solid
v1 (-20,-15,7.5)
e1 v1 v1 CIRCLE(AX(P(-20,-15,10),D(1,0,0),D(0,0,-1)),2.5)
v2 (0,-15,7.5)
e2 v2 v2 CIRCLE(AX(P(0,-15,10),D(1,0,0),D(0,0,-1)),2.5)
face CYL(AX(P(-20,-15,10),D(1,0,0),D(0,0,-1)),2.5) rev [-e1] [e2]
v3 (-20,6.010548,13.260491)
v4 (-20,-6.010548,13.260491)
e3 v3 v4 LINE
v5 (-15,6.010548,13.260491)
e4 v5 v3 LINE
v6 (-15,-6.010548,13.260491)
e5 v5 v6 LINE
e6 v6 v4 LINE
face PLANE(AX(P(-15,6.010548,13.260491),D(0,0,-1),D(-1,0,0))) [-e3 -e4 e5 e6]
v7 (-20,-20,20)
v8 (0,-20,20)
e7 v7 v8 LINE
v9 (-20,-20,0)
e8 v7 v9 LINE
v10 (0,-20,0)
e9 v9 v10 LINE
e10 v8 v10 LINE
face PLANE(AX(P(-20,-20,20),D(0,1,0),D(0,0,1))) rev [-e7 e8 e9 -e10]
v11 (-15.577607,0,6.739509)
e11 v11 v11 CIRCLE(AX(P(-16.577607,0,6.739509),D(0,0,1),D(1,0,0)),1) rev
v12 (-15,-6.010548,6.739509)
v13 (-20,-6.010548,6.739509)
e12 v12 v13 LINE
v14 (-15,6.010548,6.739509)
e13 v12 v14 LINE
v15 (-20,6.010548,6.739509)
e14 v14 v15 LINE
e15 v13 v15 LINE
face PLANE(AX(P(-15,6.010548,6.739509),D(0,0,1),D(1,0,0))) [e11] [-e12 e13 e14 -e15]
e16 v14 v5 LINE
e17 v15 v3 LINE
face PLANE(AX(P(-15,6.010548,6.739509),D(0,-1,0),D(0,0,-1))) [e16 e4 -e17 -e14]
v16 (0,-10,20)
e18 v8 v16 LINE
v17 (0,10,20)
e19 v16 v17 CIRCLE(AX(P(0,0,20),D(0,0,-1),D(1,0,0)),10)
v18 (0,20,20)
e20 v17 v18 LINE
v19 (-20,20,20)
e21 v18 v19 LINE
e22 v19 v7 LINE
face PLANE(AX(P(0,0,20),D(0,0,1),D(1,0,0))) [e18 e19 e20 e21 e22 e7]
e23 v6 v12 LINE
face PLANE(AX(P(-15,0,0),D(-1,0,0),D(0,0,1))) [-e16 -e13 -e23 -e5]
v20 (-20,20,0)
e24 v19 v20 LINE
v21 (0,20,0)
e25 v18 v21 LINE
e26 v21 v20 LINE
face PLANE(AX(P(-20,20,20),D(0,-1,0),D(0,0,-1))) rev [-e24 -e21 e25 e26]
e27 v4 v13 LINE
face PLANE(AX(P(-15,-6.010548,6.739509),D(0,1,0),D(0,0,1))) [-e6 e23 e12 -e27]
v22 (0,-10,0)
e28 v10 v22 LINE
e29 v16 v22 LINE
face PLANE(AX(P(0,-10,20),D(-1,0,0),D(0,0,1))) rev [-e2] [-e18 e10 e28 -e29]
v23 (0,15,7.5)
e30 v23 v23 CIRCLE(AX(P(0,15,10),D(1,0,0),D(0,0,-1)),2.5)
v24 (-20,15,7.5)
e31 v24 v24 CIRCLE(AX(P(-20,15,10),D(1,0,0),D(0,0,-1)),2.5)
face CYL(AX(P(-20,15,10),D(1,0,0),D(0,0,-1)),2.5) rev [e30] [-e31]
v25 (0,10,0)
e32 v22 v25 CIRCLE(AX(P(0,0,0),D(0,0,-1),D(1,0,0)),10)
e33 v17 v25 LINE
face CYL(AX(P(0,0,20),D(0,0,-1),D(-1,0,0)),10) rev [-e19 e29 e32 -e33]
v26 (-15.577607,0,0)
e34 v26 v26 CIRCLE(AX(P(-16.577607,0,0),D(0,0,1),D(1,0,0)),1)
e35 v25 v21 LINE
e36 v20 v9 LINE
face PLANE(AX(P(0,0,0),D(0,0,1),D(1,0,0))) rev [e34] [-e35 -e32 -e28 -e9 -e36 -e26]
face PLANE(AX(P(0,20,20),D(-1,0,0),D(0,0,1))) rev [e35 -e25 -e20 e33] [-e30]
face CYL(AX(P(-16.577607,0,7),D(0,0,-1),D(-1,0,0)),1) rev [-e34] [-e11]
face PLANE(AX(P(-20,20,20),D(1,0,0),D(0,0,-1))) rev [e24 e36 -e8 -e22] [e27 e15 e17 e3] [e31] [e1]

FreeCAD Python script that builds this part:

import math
import FreeCAD as App
import Part
import Sketcher

V = App.Vector

doc = App.newDocument("Part")
params = doc.addObject("Spreadsheet::Sheet", "Params")
for row, (alias, value) in enumerate([
    ("sketch1_radius", "10 mm"),
    ("sketch1_width", "20 mm"),
    ("sketch1_height", "10 mm"),
    ("pad1_length", "20 mm"),
    ("sketch2_diameter", "5 mm"),
    ("pocket1_length", "20 mm"),
    ("pocket2_length", "5 mm"),
    ("sketch4_diameter", "2 mm"),
    ("pocket3_length", "7 mm"),
], start=1):
    params.set(f"A{row}", alias)
    params.set(f"B{row}", "=" + value)
    params.setAlias(f"B{row}", alias)

body = doc.addObject("PartDesign::Body", "Body")

# Sketch on XY plane
sketch1 = doc.addObject("Sketcher::SketchObject", "Sketch")
body.addObject(sketch1)
sketch1.AttachmentSupport = (doc.XY_Plane, [""])
sketch1.MapMode = "FlatFace"
sketch1.addGeometry([
    Part.LineSegment(V(0, 10, 0), V(0, 20, 0)),  # 0
    Part.LineSegment(V(0, 20, 0), V(-20, 20, 0)),  # 1
    Part.LineSegment(V(-20, 20, 0), V(-20, -20, 0)),  # 2
    Part.LineSegment(V(-20, -20, 0), V(0, -20, 0)),  # 3
    Part.LineSegment(V(0, -20, 0), V(0, -10, 0)),  # 4
    Part.ArcOfCircle(Part.Circle(V(0, 0, 0), V(0, 0, 1), 10), math.radians(90), math.radians(270)),  # 5
], False)
sketch1.addConstraint([
    Sketcher.Constraint("Coincident", 0, 2, 1, 1),
    Sketcher.Constraint("Coincident", 1, 2, 2, 1),
    Sketcher.Constraint("Coincident", 2, 2, 3, 1),
    Sketcher.Constraint("Coincident", 3, 2, 4, 1),
    Sketcher.Constraint("Coincident", 4, 2, 5, 2),
    Sketcher.Constraint("Coincident", 5, 1, 0, 1),
    Sketcher.Constraint("Vertical", 0),
    Sketcher.Constraint("Horizontal", 1),
    Sketcher.Constraint("Vertical", 2),
    Sketcher.Constraint("Horizontal", 3),
    Sketcher.Constraint("Vertical", 4),
    Sketcher.Constraint("Coincident", 5, 3, -1, 1),
    Sketcher.Constraint("Symmetric", 0, 2, 3, 2, -1, 1),
    Sketcher.Constraint("PointOnObject", 0, 2, -2),
    Sketcher.Constraint("Radius", 5, 10.0),
    Sketcher.Constraint("DistanceX", 1, 2, 1, 1, 20.0),
    Sketcher.Constraint("DistanceY", 0, 1, 0, 2, 10.0),
])
sketch1.setExpression("Constraints[14]", "Params.sketch1_radius")
sketch1.setExpression("Constraints[15]", "Params.sketch1_width")
sketch1.setExpression("Constraints[16]", "Params.sketch1_height")
pad1 = doc.addObject("PartDesign::Pad", "Pad")
body.addObject(pad1)
pad1.Profile = sketch1
pad1.setExpression("Length", "Params.pad1_length")

# Sketch on YZ plane
sketch2 = doc.addObject("Sketcher::SketchObject", "Sketch001")
body.addObject(sketch2)
sketch2.AttachmentSupport = (doc.YZ_Plane, [""])
sketch2.MapMode = "FlatFace"
sketch2.addGeometry([
    Part.Circle(V(15, 10, 0), V(0, 0, 1), 2.5),
    Part.Circle(V(-15, 10, 0), V(0, 0, 1), 2.5),
], False)
sketch2.addConstraint([
    Sketcher.Constraint("Equal", 0, 1),
    Sketcher.Constraint("Symmetric", 0, 3, 1, 3, -2),
    Sketcher.Constraint("Diameter", 0, 5.0),
    Sketcher.Constraint("DistanceX", -1, 1, 0, 3, 15.0),
    Sketcher.Constraint("DistanceY", -1, 1, 0, 3, 10.0),
])
sketch2.setExpression("Constraints[2]", "Params.sketch2_diameter")
pocket1 = doc.addObject("PartDesign::Pocket", "Pocket")
body.addObject(pocket1)
pocket1.Profile = sketch2
pocket1.setExpression("Length", "Params.pocket1_length")

# Sketch on YZ plane
sketch3 = doc.addObject("Sketcher::SketchObject", "Sketch002")
body.addObject(sketch3)
sketch3.AttachmentSupport = (doc.YZ_Plane, [""])
sketch3.MapMode = "FlatFace"
sketch3.AttachmentOffset = App.Placement(V(0, 0, -20), App.Rotation())
sketch3.addGeometry([
    Part.LineSegment(V(6.010548, 13.260491, 0), V(-6.010548, 13.260491, 0)),
    Part.LineSegment(V(-6.010548, 13.260491, 0), V(-6.010548, 6.739509, 0)),
    Part.LineSegment(V(-6.010548, 6.739509, 0), V(6.010548, 6.739509, 0)),
    Part.LineSegment(V(6.010548, 6.739509, 0), V(6.010548, 13.260491, 0)),
], False)
sketch3.addConstraint([
    Sketcher.Constraint("Coincident", 0, 2, 1, 1),
    Sketcher.Constraint("Coincident", 1, 2, 2, 1),
    Sketcher.Constraint("Coincident", 2, 2, 3, 1),
    Sketcher.Constraint("Coincident", 3, 2, 0, 1),
    Sketcher.Constraint("Horizontal", 0),
    Sketcher.Constraint("Vertical", 1),
    Sketcher.Constraint("Horizontal", 2),
    Sketcher.Constraint("Vertical", 3),
    Sketcher.Constraint("DistanceX", 0, 2, 0, 1, 12.021096),
    Sketcher.Constraint("DistanceY", 1, 2, 1, 1, 6.520982),
    Sketcher.Constraint("DistanceY", -1, 1, 0, 2, 13.260491),
    Sketcher.Constraint("DistanceX", 0, 2, -1, 1, 6.010548),
])
pocket2 = doc.addObject("PartDesign::Pocket", "Pocket001")
body.addObject(pocket2)
pocket2.Profile = sketch3
pocket2.setExpression("Length", "Params.pocket2_length")
pocket2.Reversed = True

# Sketch on XY plane
sketch4 = doc.addObject("Sketcher::SketchObject", "Sketch003")
body.addObject(sketch4)
sketch4.AttachmentSupport = (doc.XY_Plane, [""])
sketch4.MapMode = "FlatFace"
sketch4.addGeometry(Part.Circle(V(-16.577607, 0, 0), V(0, 0, 1), 1), False)
sketch4.addConstraint([
    Sketcher.Constraint("PointOnObject", 0, 3, -1),
    Sketcher.Constraint("Diameter", 0, 2.0),
    Sketcher.Constraint("DistanceX", 0, 3, -1, 1, 16.577607),
])
sketch4.setExpression("Constraints[1]", "Params.sketch4_diameter")
pocket3 = doc.addObject("PartDesign::Pocket", "Pocket002")
body.addObject(pocket3)
pocket3.Profile = sketch4
pocket3.setExpression("Length", "Params.pocket3_length")
pocket3.Reversed = True

doc.recompute()
